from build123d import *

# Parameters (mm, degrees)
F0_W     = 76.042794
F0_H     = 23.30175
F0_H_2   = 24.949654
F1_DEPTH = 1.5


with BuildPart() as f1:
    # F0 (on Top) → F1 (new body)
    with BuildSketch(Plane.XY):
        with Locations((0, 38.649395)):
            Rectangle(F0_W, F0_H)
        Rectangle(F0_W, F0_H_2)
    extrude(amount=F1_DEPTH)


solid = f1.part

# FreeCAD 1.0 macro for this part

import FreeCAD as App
import Part
import Sketcher
from FreeCAD import Vector
Q = App.Units.Quantity

doc = App.newDocument("Part")
body = doc.addObject("PartDesign::Body", "Body")
body.AllowCompound = True

# Sketch on XY plane
sketch1 = body.newObject("Sketcher::SketchObject", "Sketch")
sketch1.AttachmentSupport = (doc.getObject("XY_Plane"), [""])
sketch1.MapMode = "FlatFace"
sketch1.addGeometry(Part.LineSegment(Vector(-38, 50, 0), Vector(-38, 27, 0)), False)
sketch1.addGeometry(Part.LineSegment(Vector(-38, 27, 0), Vector(38, 27, 0)), False)
sketch1.addGeometry(Part.LineSegment(Vector(38, 27, 0), Vector(38, 50, 0)), False)
sketch1.addGeometry(Part.LineSegment(Vector(38, 50, 0), Vector(-38, 50, 0)), False)
sketch1.addGeometry(Part.LineSegment(Vector(-38, 12, 0), Vector(-38, -12, 0)), False)
sketch1.addGeometry(Part.LineSegment(Vector(-38, -12, 0), Vector(38, -12, 0)), False)
sketch1.addGeometry(Part.LineSegment(Vector(38, -12, 0), Vector(38, 12, 0)), False)
sketch1.addGeometry(Part.LineSegment(Vector(38, 12, 0), Vector(-38, 12, 0)), False)
sketch1.addConstraint(Sketcher.Constraint("Coincident", 0, 2, 1, 1))
sketch1.addConstraint(Sketcher.Constraint("Coincident", 1, 2, 2, 1))
sketch1.addConstraint(Sketcher.Constraint("Coincident", 2, 2, 3, 1))
sketch1.addConstraint(Sketcher.Constraint("Coincident", 3, 2, 0, 1))
sketch1.addConstraint(Sketcher.Constraint("Coincident", 4, 2, 5, 1))
sketch1.addConstraint(Sketcher.Constraint("Coincident", 5, 2, 6, 1))
sketch1.addConstraint(Sketcher.Constraint("Coincident", 6, 2, 7, 1))
sketch1.addConstraint(Sketcher.Constraint("Coincident", 7, 2, 4, 1))
sketch1.addConstraint(Sketcher.Constraint("Vertical", 0))
sketch1.addConstraint(Sketcher.Constraint("Horizontal", 1))
sketch1.addConstraint(Sketcher.Constraint("Vertical", 2))
sketch1.addConstraint(Sketcher.Constraint("Horizontal", 3))
sketch1.addConstraint(Sketcher.Constraint("Vertical", 4))
sketch1.addConstraint(Sketcher.Constraint("Horizontal", 5))
sketch1.addConstraint(Sketcher.Constraint("Vertical", 6))
sketch1.addConstraint(Sketcher.Constraint("Horizontal", 7))
sketch1.addConstraint(Sketcher.Constraint("Symmetric", 4, 2, 6, 2, -1, 1))
sketch1.addConstraint(Sketcher.Constraint("Vertical", 3, 2, 4, 2))
sketch1.addConstraint(Sketcher.Constraint("Vertical", 2, 2, 5, 2))
sketch1.addConstraint(Sketcher.Constraint("DistanceY", 0, 2, 0, 1, Q("23.30175 mm")))
sketch1.addConstraint(Sketcher.Constraint("DistanceX", 1, 1, 1, 2, Q("76.042794 mm")))
sketch1.addConstraint(Sketcher.Constraint("DistanceY", 4, 2, 4, 1, Q("24.949654 mm")))
sketch1.addConstraint(Sketcher.Constraint("DistanceY", -1, 1, 0, 2, Q("26.99852 mm")))
pad1 = body.newObject("PartDesign::Pad", "Pad")
pad1.Profile = sketch1
pad1.Length = 1.5

doc.recompute()
